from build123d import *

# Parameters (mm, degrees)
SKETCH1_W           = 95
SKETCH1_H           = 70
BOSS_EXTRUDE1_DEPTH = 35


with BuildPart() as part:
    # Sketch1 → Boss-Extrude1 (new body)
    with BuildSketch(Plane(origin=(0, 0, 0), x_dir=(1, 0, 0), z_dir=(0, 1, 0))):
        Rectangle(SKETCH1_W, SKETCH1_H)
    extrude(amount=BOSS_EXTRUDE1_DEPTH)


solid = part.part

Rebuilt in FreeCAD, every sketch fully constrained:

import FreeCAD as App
import Part
import Sketcher


def add_polygon(sketch, points):
    """Adds a closed chain of lines whose ends are joined by coincident constraints."""
    first, n = sketch.GeometryCount, len(points)
    for a, b in zip(points, points[1:] + points[:1]):
        sketch.addGeometry(Part.LineSegment(App.Vector(*a, 0), App.Vector(*b, 0)), False)
    for i in range(n):
        sketch.addConstraint(Sketcher.Constraint("Coincident", first + i, 2, first + (i + 1) % n, 1))

doc = App.newDocument("Part")
body = doc.addObject("PartDesign::Body", "Body")

# Sketch on XZ plane
sketch1 = body.newObject("Sketcher::SketchObject", "Sketch")
sketch1.AttachmentSupport = (doc.getObject("XZ_Plane"), [""])
sketch1.MapMode = "FlatFace"
add_polygon(sketch1, [(-48, -35), (-48, 35), (48, 35), (48, -35)])  # lines 0-3
sketch1.addConstraint([
    Sketcher.Constraint("Vertical", 0),
    Sketcher.Constraint("Horizontal", 1),
    Sketcher.Constraint("Vertical", 2),
    Sketcher.Constraint("Horizontal", 3),
    Sketcher.Constraint("Symmetric", 0, 2, 2, 2, -1, 1),
    Sketcher.Constraint("DistanceX", 1, 1, 1, 2, 95.0),
    Sketcher.Constraint("DistanceY", 0, 1, 0, 2, 70.0),
])
pad1 = body.newObject("PartDesign::Pad", "Pad")
pad1.Profile = sketch1
pad1.Length = 35
pad1.Reversed = True

doc.recompute()
